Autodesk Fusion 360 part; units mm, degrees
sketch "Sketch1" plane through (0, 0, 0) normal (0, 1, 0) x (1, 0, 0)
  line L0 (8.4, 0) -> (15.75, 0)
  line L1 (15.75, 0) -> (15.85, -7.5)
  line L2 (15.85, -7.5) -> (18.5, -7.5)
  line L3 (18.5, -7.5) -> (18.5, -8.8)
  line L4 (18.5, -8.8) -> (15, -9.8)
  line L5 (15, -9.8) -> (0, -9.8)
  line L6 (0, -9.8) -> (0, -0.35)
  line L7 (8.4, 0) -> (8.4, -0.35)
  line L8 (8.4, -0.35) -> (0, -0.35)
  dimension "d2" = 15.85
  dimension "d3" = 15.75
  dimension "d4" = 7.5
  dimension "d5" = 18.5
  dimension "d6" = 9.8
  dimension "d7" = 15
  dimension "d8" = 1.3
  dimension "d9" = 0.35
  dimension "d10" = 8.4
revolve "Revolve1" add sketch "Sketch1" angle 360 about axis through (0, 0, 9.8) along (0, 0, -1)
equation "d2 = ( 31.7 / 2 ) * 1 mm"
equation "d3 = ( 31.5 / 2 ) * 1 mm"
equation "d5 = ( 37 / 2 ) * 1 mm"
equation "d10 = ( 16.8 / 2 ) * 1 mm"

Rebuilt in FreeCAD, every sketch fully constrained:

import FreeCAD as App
import Part
import Sketcher

V = App.Vector
Q = App.Units.Quantity

doc = App.newDocument("Part")
body = doc.addObject("PartDesign::Body", "Body")

sketch1 = body.newObject("Sketcher::SketchObject", "Sketch")
sketch1.AttachmentSupport = (doc.getObject("XZ_Plane"), [""])
sketch1.MapMode = "FlatFace"
sketch1.addGeometry([
    Part.LineSegment(V(15.75, 0, 0), V(8.4, 0, 0)),
    Part.LineSegment(V(8.4, 0, 0), V(8.4, 0.35, 0)),
    Part.LineSegment(V(8.4, 0.35, 0), V(0, 0.35, 0)),
    Part.LineSegment(V(0, 0.35, 0), V(0, 9.8, 0)),
    Part.LineSegment(V(0, 9.8, 0), V(15, 9.8, 0)),
    Part.LineSegment(V(15, 9.8, 0), V(18.5, 8.8, 0)),
    Part.LineSegment(V(18.5, 8.8, 0), V(18.5, 7.5, 0)),
    Part.LineSegment(V(18.5, 7.5, 0), V(15.85, 7.5, 0)),
    Part.LineSegment(V(15.85, 7.5, 0), V(15.75, 0, 0)),
], False)
sketch1.addConstraint([
    Sketcher.Constraint("Coincident", 0, 2, 1, 1),
    Sketcher.Constraint("Coincident", 1, 2, 2, 1),
    Sketcher.Constraint("Coincident", 2, 2, 3, 1),
    Sketcher.Constraint("Coincident", 3, 2, 4, 1),
    Sketcher.Constraint("Coincident", 4, 2, 5, 1),
    Sketcher.Constraint("Coincident", 5, 2, 6, 1),
    Sketcher.Constraint("Coincident", 6, 2, 7, 1),
    Sketcher.Constraint("Coincident", 7, 2, 8, 1),
    Sketcher.Constraint("Coincident", 8, 2, 0, 1),
    Sketcher.Constraint("Horizontal", 0),
    Sketcher.Constraint("Vertical", 1),
    Sketcher.Constraint("Horizontal", 2),
    Sketcher.Constraint("Vertical", 3),
    Sketcher.Constraint("Horizontal", 4),
    Sketcher.Constraint("Vertical", 6),
    Sketcher.Constraint("Horizontal", 7),
    Sketcher.Constraint("PointOnObject", 0, 2, -1),
    Sketcher.Constraint("PointOnObject", 2, 2, -2),
    Sketcher.Constraint("DistanceX", 4, 1, 4, 2, Q("15 mm")),
    Sketcher.Constraint("DistanceX", 2, 2, 2, 1, Q("8.4 mm")),
    Sketcher.Constraint("DistanceY", 6, 2, 6, 1, Q("1.3 mm")),
    Sketcher.Constraint("DistanceY", 1, 1, 1, 2, Q("0.35 mm")),
    Sketcher.Constraint("DistanceY", -1, 1, 3, 2, Q("9.8 mm")),
    Sketcher.Constraint("DistanceX", -1, 1, 5, 2, Q("18.5 mm")),
    Sketcher.Constraint("DistanceY", -1, 1, 6, 2, Q("7.5 mm")),
    Sketcher.Constraint("DistanceX", -1, 1, 7, 2, Q("15.85 mm")),
    Sketcher.Constraint("DistanceX", -1, 1, 8, 2, Q("15.75 mm")),
])
revolution = body.newObject("PartDesign::Revolution", "Revolution")
revolution.Profile = sketch1
revolution.ReferenceAxis = (sketch1, ["V_Axis"])
revolution.Angle = 360

doc.recompute()
